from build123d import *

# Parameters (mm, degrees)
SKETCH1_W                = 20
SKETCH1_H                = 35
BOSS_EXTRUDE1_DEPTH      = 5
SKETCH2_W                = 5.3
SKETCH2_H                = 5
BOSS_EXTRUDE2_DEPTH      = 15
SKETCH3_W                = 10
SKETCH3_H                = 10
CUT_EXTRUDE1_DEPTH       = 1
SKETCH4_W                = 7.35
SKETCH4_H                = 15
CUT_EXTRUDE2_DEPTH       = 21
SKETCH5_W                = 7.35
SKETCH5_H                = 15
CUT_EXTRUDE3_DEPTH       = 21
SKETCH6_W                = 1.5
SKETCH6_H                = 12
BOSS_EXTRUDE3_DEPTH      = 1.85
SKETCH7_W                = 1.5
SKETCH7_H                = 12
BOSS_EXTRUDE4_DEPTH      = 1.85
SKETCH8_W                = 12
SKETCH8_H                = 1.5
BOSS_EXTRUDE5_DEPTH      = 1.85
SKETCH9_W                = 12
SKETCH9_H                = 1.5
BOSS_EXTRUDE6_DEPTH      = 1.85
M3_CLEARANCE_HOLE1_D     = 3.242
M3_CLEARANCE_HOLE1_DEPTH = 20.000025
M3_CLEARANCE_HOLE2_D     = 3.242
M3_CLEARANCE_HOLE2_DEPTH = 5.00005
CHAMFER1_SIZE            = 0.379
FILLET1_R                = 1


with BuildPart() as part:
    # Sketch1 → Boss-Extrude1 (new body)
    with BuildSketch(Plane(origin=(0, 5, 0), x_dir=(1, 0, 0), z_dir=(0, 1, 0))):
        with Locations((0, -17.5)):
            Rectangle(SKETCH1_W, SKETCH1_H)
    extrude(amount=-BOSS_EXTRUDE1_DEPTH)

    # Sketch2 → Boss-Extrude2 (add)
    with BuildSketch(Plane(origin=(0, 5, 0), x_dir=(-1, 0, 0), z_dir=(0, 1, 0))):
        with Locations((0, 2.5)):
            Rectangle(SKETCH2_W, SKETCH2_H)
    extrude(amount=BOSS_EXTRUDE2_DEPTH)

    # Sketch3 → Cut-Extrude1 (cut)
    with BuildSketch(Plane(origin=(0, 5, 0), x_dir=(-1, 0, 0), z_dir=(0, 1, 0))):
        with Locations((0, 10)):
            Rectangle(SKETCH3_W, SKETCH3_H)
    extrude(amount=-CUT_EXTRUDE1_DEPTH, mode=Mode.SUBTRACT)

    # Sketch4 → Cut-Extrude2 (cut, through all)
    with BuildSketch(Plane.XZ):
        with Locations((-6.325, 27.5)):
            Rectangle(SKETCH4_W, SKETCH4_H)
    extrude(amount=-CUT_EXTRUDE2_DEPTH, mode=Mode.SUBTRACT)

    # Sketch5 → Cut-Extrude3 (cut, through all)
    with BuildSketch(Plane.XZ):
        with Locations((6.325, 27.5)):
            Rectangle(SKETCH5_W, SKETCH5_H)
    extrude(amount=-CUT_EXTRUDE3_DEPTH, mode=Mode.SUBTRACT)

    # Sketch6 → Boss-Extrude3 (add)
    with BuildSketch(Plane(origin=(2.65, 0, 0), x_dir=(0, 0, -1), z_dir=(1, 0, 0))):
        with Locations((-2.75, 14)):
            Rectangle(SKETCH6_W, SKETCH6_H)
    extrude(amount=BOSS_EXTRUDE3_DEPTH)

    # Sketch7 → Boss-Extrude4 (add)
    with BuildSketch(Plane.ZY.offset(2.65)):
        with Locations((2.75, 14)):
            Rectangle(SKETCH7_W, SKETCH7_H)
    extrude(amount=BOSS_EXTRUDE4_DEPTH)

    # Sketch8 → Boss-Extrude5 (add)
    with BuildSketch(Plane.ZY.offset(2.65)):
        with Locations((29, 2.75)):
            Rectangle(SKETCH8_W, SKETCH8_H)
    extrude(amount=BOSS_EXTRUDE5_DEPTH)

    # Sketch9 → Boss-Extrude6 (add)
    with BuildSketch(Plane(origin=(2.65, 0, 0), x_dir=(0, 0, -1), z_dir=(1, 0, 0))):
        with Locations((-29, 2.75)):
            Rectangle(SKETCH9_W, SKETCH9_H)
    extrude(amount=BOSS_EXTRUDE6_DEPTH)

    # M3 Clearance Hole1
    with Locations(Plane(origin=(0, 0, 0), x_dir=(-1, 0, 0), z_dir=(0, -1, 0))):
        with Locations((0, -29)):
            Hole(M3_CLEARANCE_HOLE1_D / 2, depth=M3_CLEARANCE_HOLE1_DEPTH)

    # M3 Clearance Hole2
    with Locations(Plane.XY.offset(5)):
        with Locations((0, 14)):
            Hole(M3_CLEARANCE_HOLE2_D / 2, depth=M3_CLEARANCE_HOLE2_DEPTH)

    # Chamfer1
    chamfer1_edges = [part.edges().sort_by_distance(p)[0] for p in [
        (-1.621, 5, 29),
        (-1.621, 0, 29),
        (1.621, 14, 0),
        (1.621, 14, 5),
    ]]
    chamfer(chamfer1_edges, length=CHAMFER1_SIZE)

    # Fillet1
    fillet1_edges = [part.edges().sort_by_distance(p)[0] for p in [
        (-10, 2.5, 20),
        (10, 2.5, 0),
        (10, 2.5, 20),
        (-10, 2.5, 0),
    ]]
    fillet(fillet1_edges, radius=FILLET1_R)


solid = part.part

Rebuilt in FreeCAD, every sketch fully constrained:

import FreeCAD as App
import Part
import Sketcher
from FreeCAD import Vector


def edges_at(feature, points):
    """Names of the edges that pass closest to the given points."""
    edges = feature.Shape.Edges
    near = lambda p: min(range(len(edges)), key=lambda i: edges[i].distToShape(Part.Vertex(*p))[0])
    return sorted({f"Edge{near(p) + 1}" for p in points})

doc = App.newDocument("Part")
body = doc.addObject("PartDesign::Body", "Body")

sketch1 = doc.addObject("Sketcher::SketchObject", "Sketch")
body.addObject(sketch1)
sketch1.AttachmentSupport = (doc.XZ_Plane, [""])
sketch1.MapMode = "FlatFace"
sketch1.AttachmentOffset = App.Placement(Vector(0, 0, -5), App.Rotation())
sketch1.addGeometry([
    Part.LineSegment(Vector(-10, 0, 0), Vector(-10, 35, 0)),
    Part.LineSegment(Vector(-10, 35, 0), Vector(10, 35, 0)),
    Part.LineSegment(Vector(10, 35, 0), Vector(10, 0, 0)),
    Part.LineSegment(Vector(10, 0, 0), Vector(-10, 0, 0)),
], False)
sketch1.addConstraint([
    Sketcher.Constraint("Coincident", 0, 2, 1, 1),
    Sketcher.Constraint("Coincident", 1, 2, 2, 1),
    Sketcher.Constraint("Coincident", 2, 2, 3, 1),
    Sketcher.Constraint("Coincident", 3, 2, 0, 1),
    Sketcher.Constraint("Vertical", 0),
    Sketcher.Constraint("Horizontal", 1),
    Sketcher.Constraint("Vertical", 2),
    Sketcher.Constraint("Horizontal", 3),
    Sketcher.Constraint("Symmetric", 2, 2, 3, 2, -1, 1),
    Sketcher.Constraint("DistanceX", 1, 1, 1, 2, 20.0),
    Sketcher.Constraint("DistanceY", 0, 1, 0, 2, 35.0),
])
pad1 = doc.addObject("PartDesign::Pad", "Pad")
body.addObject(pad1)
pad1.Profile = sketch1
pad1.Length = 5

sketch2 = doc.addObject("Sketcher::SketchObject", "Sketch001")
body.addObject(sketch2)
sketch2.AttachmentSupport = (doc.XZ_Plane, [""])
sketch2.MapMode = "FlatFace"
sketch2.AttachmentOffset = App.Placement(Vector(0, 0, -5), App.Rotation())
sketch2.addGeometry([
    Part.LineSegment(Vector(2.65, 5, 0), Vector(2.65, 0, 0)),
    Part.LineSegment(Vector(2.65, 0, 0), Vector(-2.65, 0, 0)),
    Part.LineSegment(Vector(-2.65, 0, 0), Vector(-2.65, 5, 0)),
    Part.LineSegment(Vector(-2.65, 5, 0), Vector(2.65, 5, 0)),
], False)
sketch2.addConstraint([
    Sketcher.Constraint("Coincident", 0, 2, 1, 1),
    Sketcher.Constraint("Coincident", 1, 2, 2, 1),
    Sketcher.Constraint("Coincident", 2, 2, 3, 1),
    Sketcher.Constraint("Coincident", 3, 2, 0, 1),
    Sketcher.Constraint("Vertical", 0),
    Sketcher.Constraint("Horizontal", 1),
    Sketcher.Constraint("Vertical", 2),
    Sketcher.Constraint("Horizontal", 3),
    Sketcher.Constraint("Symmetric", 0, 2, 1, 2, -1, 1),
    Sketcher.Constraint("DistanceY", 0, 2, 0, 1, 5.0),
    Sketcher.Constraint("DistanceX", 1, 2, 1, 1, 5.3),
])
pad2 = doc.addObject("PartDesign::Pad", "Pad001")
body.addObject(pad2)
pad2.Profile = sketch2
pad2.Length = 15
pad2.Reversed = True

sketch3 = doc.addObject("Sketcher::SketchObject", "Sketch002")
body.addObject(sketch3)
sketch3.AttachmentSupport = (doc.XZ_Plane, [""])
sketch3.MapMode = "FlatFace"
sketch3.AttachmentOffset = App.Placement(Vector(0, 0, -5), App.Rotation())
sketch3.addGeometry([
    Part.LineSegment(Vector(5, 15, 0), Vector(5, 5, 0)),
    Part.LineSegment(Vector(5, 5, 0), Vector(-5, 5, 0)),
    Part.LineSegment(Vector(-5, 5, 0), Vector(-5, 15, 0)),
    Part.LineSegment(Vector(-5, 15, 0), Vector(5, 15, 0)),
], False)
sketch3.addConstraint([
    Sketcher.Constraint("Coincident", 0, 2, 1, 1),
    Sketcher.Constraint("Coincident", 1, 2, 2, 1),
    Sketcher.Constraint("Coincident", 2, 2, 3, 1),
    Sketcher.Constraint("Coincident", 3, 2, 0, 1),
    Sketcher.Constraint("Vertical", 0),
    Sketcher.Constraint("Horizontal", 1),
    Sketcher.Constraint("Vertical", 2),
    Sketcher.Constraint("Horizontal", 3),
    Sketcher.Constraint("Equal", 3, 0),
    Sketcher.Constraint("DistanceX", 1, 2, 1, 1, 10.0),
    Sketcher.Constraint("DistanceX", -1, 1, 0, 2, 5.0),
    Sketcher.Constraint("DistanceY", -1, 1, 0, 2, 5.0),
])
pocket1 = doc.addObject("PartDesign::Pocket", "Pocket")
body.addObject(pocket1)
pocket1.Profile = sketch3
pocket1.Length = 1
pocket1.Reversed = True

sketch4 = doc.addObject("Sketcher::SketchObject", "Sketch003")
body.addObject(sketch4)
sketch4.AttachmentSupport = (doc.XZ_Plane, [""])
sketch4.MapMode = "FlatFace"
sketch4.addGeometry([
    Part.LineSegment(Vector(-10, 35, 0), Vector(-10, 20, 0)),
    Part.LineSegment(Vector(-10, 20, 0), Vector(-2.65, 20, 0)),
    Part.LineSegment(Vector(-2.65, 20, 0), Vector(-2.65, 35, 0)),
    Part.LineSegment(Vector(-2.65, 35, 0), Vector(-10, 35, 0)),
], False)
sketch4.addConstraint([
    Sketcher.Constraint("Coincident", 0, 2, 1, 1),
    Sketcher.Constraint("Coincident", 1, 2, 2, 1),
    Sketcher.Constraint("Coincident", 2, 2, 3, 1),
    Sketcher.Constraint("Coincident", 3, 2, 0, 1),
    Sketcher.Constraint("Vertical", 0),
    Sketcher.Constraint("Horizontal", 1),
    Sketcher.Constraint("Vertical", 2),
    Sketcher.Constraint("Horizontal", 3),
    Sketcher.Constraint("DistanceY", 0, 2, 0, 1, 15.0),
    Sketcher.Constraint("DistanceX", 0, 2, -1, 1, 10.0),
    Sketcher.Constraint("DistanceY", -1, 1, 0, 2, 20.0),
    Sketcher.Constraint("DistanceX", 1, 1, 1, 2, 7.35),
])
pocket2 = doc.addObject("PartDesign::Pocket", "Pocket001")
body.addObject(pocket2)
pocket2.Profile = sketch4
pocket2.Type = "ThroughAll"

sketch5 = doc.addObject("Sketcher::SketchObject", "Sketch004")
body.addObject(sketch5)
sketch5.AttachmentSupport = (doc.XZ_Plane, [""])
sketch5.MapMode = "FlatFace"
sketch5.addGeometry([
    Part.LineSegment(Vector(2.65, 35, 0), Vector(2.65, 20, 0)),
    Part.LineSegment(Vector(2.65, 20, 0), Vector(10, 20, 0)),
    Part.LineSegment(Vector(10, 20, 0), Vector(10, 35, 0)),
    Part.LineSegment(Vector(10, 35, 0), Vector(2.65, 35, 0)),
], False)
sketch5.addConstraint([
    Sketcher.Constraint("Coincident", 0, 2, 1, 1),
    Sketcher.Constraint("Coincident", 1, 2, 2, 1),
    Sketcher.Constraint("Coincident", 2, 2, 3, 1),
    Sketcher.Constraint("Coincident", 3, 2, 0, 1),
    Sketcher.Constraint("Vertical", 0),
    Sketcher.Constraint("Horizontal", 1),
    Sketcher.Constraint("Vertical", 2),
    Sketcher.Constraint("Horizontal", 3),
    Sketcher.Constraint("DistanceY", 0, 2, 0, 1, 15.0),
    Sketcher.Constraint("DistanceY", -1, 1, 0, 2, 20.0),
    Sketcher.Constraint("DistanceX", -1, 1, 1, 2, 10.0),
    Sketcher.Constraint("DistanceX", 1, 1, 1, 2, 7.35),
])
pocket3 = doc.addObject("PartDesign::Pocket", "Pocket002")
body.addObject(pocket3)
pocket3.Profile = sketch5
pocket3.Type = "ThroughAll"

sketch6 = doc.addObject("Sketcher::SketchObject", "Sketch005")
body.addObject(sketch6)
sketch6.AttachmentSupport = (doc.YZ_Plane, [""])
sketch6.MapMode = "FlatFace"
sketch6.AttachmentOffset = App.Placement(Vector(0, 0, 2.65), App.Rotation())
sketch6.addGeometry([
    Part.LineSegment(Vector(20, 3.5, 0), Vector(8, 3.5, 0)),
    Part.LineSegment(Vector(8, 3.5, 0), Vector(8, 2, 0)),
    Part.LineSegment(Vector(8, 2, 0), Vector(20, 2, 0)),
    Part.LineSegment(Vector(20, 2, 0), Vector(20, 3.5, 0)),
], False)
sketch6.addConstraint([
    Sketcher.Constraint("Coincident", 0, 2, 1, 1),
    Sketcher.Constraint("Coincident", 1, 2, 2, 1),
    Sketcher.Constraint("Coincident", 2, 2, 3, 1),
    Sketcher.Constraint("Coincident", 3, 2, 0, 1),
    Sketcher.Constraint("Horizontal", 0),
    Sketcher.Constraint("Vertical", 1),
    Sketcher.Constraint("Horizontal", 2),
    Sketcher.Constraint("Vertical", 3),
    Sketcher.Constraint("DistanceX", 0, 2, 0, 1, 12.0),
    Sketcher.Constraint("DistanceY", 1, 2, 1, 1, 1.5),
    Sketcher.Constraint("DistanceX", -1, 1, 0, 2, 8.0),
    Sketcher.Constraint("DistanceY", -1, 1, 1, 2, 2.0),
])
pad3 = doc.addObject("PartDesign::Pad", "Pad002")
body.addObject(pad3)
pad3.Profile = sketch6
pad3.Length = 1.85

sketch7 = doc.addObject("Sketcher::SketchObject", "Sketch006")
body.addObject(sketch7)
sketch7.AttachmentSupport = (doc.YZ_Plane, [""])
sketch7.MapMode = "FlatFace"
sketch7.AttachmentOffset = App.Placement(Vector(0, 0, -2.65), App.Rotation())
sketch7.addGeometry([
    Part.LineSegment(Vector(20, 2, 0), Vector(8, 2, 0)),
    Part.LineSegment(Vector(8, 2, 0), Vector(8, 3.5, 0)),
    Part.LineSegment(Vector(8, 3.5, 0), Vector(20, 3.5, 0)),
    Part.LineSegment(Vector(20, 3.5, 0), Vector(20, 2, 0)),
], False)
sketch7.addConstraint([
    Sketcher.Constraint("Coincident", 0, 2, 1, 1),
    Sketcher.Constraint("Coincident", 1, 2, 2, 1),
    Sketcher.Constraint("Coincident", 2, 2, 3, 1),
    Sketcher.Constraint("Coincident", 3, 2, 0, 1),
    Sketcher.Constraint("Horizontal", 0),
    Sketcher.Constraint("Vertical", 1),
    Sketcher.Constraint("Horizontal", 2),
    Sketcher.Constraint("Vertical", 3),
    Sketcher.Constraint("DistanceX", 0, 2, 0, 1, 12.0),
    Sketcher.Constraint("DistanceY", 1, 1, 1, 2, 1.5),
    Sketcher.Constraint("DistanceX", -1, 1, 0, 2, 8.0),
    Sketcher.Constraint("DistanceY", -1, 1, 0, 2, 2.0),
])
pad4 = doc.addObject("PartDesign::Pad", "Pad003")
body.addObject(pad4)
pad4.Profile = sketch7
pad4.Length = 1.85
pad4.Reversed = True

sketch8 = doc.addObject("Sketcher::SketchObject", "Sketch007")
body.addObject(sketch8)
sketch8.AttachmentSupport = (doc.YZ_Plane, [""])
sketch8.MapMode = "FlatFace"
sketch8.AttachmentOffset = App.Placement(Vector(0, 0, -2.65), App.Rotation())
sketch8.addGeometry([
    Part.LineSegment(Vector(3.5, 23, 0), Vector(2, 23, 0)),
    Part.LineSegment(Vector(2, 23, 0), Vector(2, 35, 0)),
    Part.LineSegment(Vector(2, 35, 0), Vector(3.5, 35, 0)),
    Part.LineSegment(Vector(3.5, 35, 0), Vector(3.5, 23, 0)),
], False)
sketch8.addConstraint([
    Sketcher.Constraint("Coincident", 0, 2, 1, 1),
    Sketcher.Constraint("Coincident", 1, 2, 2, 1),
    Sketcher.Constraint("Coincident", 2, 2, 3, 1),
    Sketcher.Constraint("Coincident", 3, 2, 0, 1),
    Sketcher.Constraint("Horizontal", 0),
    Sketcher.Constraint("Vertical", 1),
    Sketcher.Constraint("Horizontal", 2),
    Sketcher.Constraint("Vertical", 3),
    Sketcher.Constraint("DistanceY", 1, 1, 1, 2, 12.0),
    Sketcher.Constraint("DistanceX", 0, 2, 0, 1, 1.5),
    Sketcher.Constraint("DistanceX", -1, 1, 0, 2, 2.0),
    Sketcher.Constraint("DistanceY", -1, 1, 0, 2, 23.0),
])
pad5 = doc.addObject("PartDesign::Pad", "Pad004")
body.addObject(pad5)
pad5.Profile = sketch8
pad5.Length = 1.85
pad5.Reversed = True

sketch9 = doc.addObject("Sketcher::SketchObject", "Sketch008")
body.addObject(sketch9)
sketch9.AttachmentSupport = (doc.YZ_Plane, [""])
sketch9.MapMode = "FlatFace"
sketch9.AttachmentOffset = App.Placement(Vector(0, 0, 2.65), App.Rotation())
sketch9.addGeometry([
    Part.LineSegment(Vector(3.5, 35, 0), Vector(2, 35, 0)),
    Part.LineSegment(Vector(2, 35, 0), Vector(2, 23, 0)),
    Part.LineSegment(Vector(2, 23, 0), Vector(3.5, 23, 0)),
    Part.LineSegment(Vector(3.5, 23, 0), Vector(3.5, 35, 0)),
], False)
sketch9.addConstraint([
    Sketcher.Constraint("Coincident", 0, 2, 1, 1),
    Sketcher.Constraint("Coincident", 1, 2, 2, 1),
    Sketcher.Constraint("Coincident", 2, 2, 3, 1),
    Sketcher.Constraint("Coincident", 3, 2, 0, 1),
    Sketcher.Constraint("Horizontal", 0),
    Sketcher.Constraint("Vertical", 1),
    Sketcher.Constraint("Horizontal", 2),
    Sketcher.Constraint("Vertical", 3),
    Sketcher.Constraint("DistanceY", 1, 2, 1, 1, 12.0),
    Sketcher.Constraint("DistanceX", 0, 2, 0, 1, 1.5),
    Sketcher.Constraint("DistanceX", -1, 1, 0, 2, 2.0),
    Sketcher.Constraint("DistanceY", -1, 1, 0, 2, 35.0),
])
pad6 = doc.addObject("PartDesign::Pad", "Pad005")
body.addObject(pad6)
pad6.Profile = sketch9
pad6.Length = 1.85

sketch10 = doc.addObject("Sketcher::SketchObject", "Sketch009")
body.addObject(sketch10)
sketch10.AttachmentSupport = (doc.XZ_Plane, [""])
sketch10.MapMode = "FlatFace"
sketch10.addGeometry(Part.Circle(Vector(0, 29, 0), Vector(0, 0, 1), 1.621), False)
sketch10.addConstraint([
    Sketcher.Constraint("PointOnObject", 0, 3, -2),
    Sketcher.Constraint("Diameter", 0, 3.242),
    Sketcher.Constraint("DistanceY", -1, 1, 0, 3, 29.0),
])
doc.recompute()
hole = doc.addObject("PartDesign::Hole", "Hole")
body.addObject(hole)
hole.Profile = sketch10
hole.ThreadType = "None"
hole.Diameter = 3.242
hole.DepthType = "Dimension"
hole.Depth = 20.000025
hole.DrillPoint = "Flat"

sketch11 = doc.addObject("Sketcher::SketchObject", "Sketch010")
body.addObject(sketch11)
sketch11.AttachmentSupport = (doc.XY_Plane, [""])
sketch11.MapMode = "FlatFace"
sketch11.AttachmentOffset = App.Placement(Vector(0, 0, 5), App.Rotation())
sketch11.addGeometry(Part.Circle(Vector(0, 14, 0), Vector(0, 0, 1), 1.621), False)
sketch11.addConstraint([
    Sketcher.Constraint("PointOnObject", 0, 3, -2),
    Sketcher.Constraint("Diameter", 0, 3.242),
    Sketcher.Constraint("DistanceY", -1, 1, 0, 3, 14.0),
])
doc.recompute()
hole2 = doc.addObject("PartDesign::Hole", "Hole001")
body.addObject(hole2)
hole2.Profile = sketch11
hole2.ThreadType = "None"
hole2.Diameter = 3.242
hole2.DepthType = "Dimension"
hole2.Depth = 5.00005
hole2.DrillPoint = "Flat"
doc.recompute()

chamfer = doc.addObject("PartDesign::Chamfer", "Chamfer")
body.addObject(chamfer)
chamfer.Base = (hole2, edges_at(hole2, [
    (-1.621, 5, 29),
    (-1.621, 0, 29),
    (1.621, 14, 0),
    (1.621, 14, 5),
]))
chamfer.Size = 0.379
doc.recompute()

fillet = doc.addObject("PartDesign::Fillet", "Fillet")
body.addObject(fillet)
fillet.Base = (chamfer, edges_at(chamfer, [
    (-10, 2.5, 20),
    (10, 2.5, 0),
    (10, 2.5, 20),
    (-10, 2.5, 0),
]))
fillet.Radius = 1

doc.recompute()
